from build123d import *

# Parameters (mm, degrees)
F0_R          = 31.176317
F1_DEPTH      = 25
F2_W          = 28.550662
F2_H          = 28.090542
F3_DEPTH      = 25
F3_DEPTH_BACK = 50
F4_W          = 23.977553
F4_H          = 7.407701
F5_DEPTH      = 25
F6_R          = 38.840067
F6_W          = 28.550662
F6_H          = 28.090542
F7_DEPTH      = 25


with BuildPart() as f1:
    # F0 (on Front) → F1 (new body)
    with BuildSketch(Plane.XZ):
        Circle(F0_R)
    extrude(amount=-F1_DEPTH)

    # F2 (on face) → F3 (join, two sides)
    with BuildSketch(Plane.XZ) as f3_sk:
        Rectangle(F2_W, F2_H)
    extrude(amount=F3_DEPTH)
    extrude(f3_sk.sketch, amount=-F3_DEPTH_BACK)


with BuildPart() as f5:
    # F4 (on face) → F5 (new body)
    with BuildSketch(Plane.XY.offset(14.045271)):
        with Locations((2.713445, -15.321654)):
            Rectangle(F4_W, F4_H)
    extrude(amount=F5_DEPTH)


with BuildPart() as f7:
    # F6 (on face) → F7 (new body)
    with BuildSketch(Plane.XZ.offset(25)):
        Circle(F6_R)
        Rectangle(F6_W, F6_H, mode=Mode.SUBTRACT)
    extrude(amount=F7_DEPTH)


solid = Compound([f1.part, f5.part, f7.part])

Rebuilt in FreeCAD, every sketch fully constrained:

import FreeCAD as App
import Part
import Sketcher
Q = App.Units.Quantity

doc = App.newDocument("Part")
body = doc.addObject("PartDesign::Body", "Body")

# Sketch on XZ plane
sketch1 = body.newObject("Sketcher::SketchObject", "Sketch")
sketch1.AttachmentSupport = (doc.getObject("XZ_Plane"), [""])
sketch1.MapMode = "FlatFace"
sketch1.addGeometry(Part.Circle(App.Vector(0, 0, 0), App.Vector(0, 0, 1), 31.176317), False)
sketch1.addConstraint([
    Sketcher.Constraint("Coincident", 0, 3, -1, 1),
    Sketcher.Constraint("Diameter", 0, Q("62.352634 mm")),
])
pad1 = body.newObject("PartDesign::Pad", "Pad")
pad1.Profile = sketch1
pad1.Length = 25
pad1.Reversed = True

# Sketch on XZ plane
sketch2 = body.newObject("Sketcher::SketchObject", "Sketch001")
sketch2.AttachmentSupport = (doc.getObject("XZ_Plane"), [""])
sketch2.MapMode = "FlatFace"
sketch2.addGeometry([
    Part.LineSegment(App.Vector(-14.275331, 14.045271, 0), App.Vector(-14.275331, -14.045271, 0)),
    Part.LineSegment(App.Vector(-14.275331, -14.045271, 0), App.Vector(14.275331, -14.045271, 0)),
    Part.LineSegment(App.Vector(14.275331, -14.045271, 0), App.Vector(14.275331, 14.045271, 0)),
    Part.LineSegment(App.Vector(14.275331, 14.045271, 0), App.Vector(-14.275331, 14.045271, 0)),
], False)
sketch2.addConstraint([
    Sketcher.Constraint("Coincident", 0, 2, 1, 1),
    Sketcher.Constraint("Coincident", 1, 2, 2, 1),
    Sketcher.Constraint("Coincident", 2, 2, 3, 1),
    Sketcher.Constraint("Coincident", 3, 2, 0, 1),
    Sketcher.Constraint("Vertical", 0),
    Sketcher.Constraint("Horizontal", 1),
    Sketcher.Constraint("Vertical", 2),
    Sketcher.Constraint("Horizontal", 3),
    Sketcher.Constraint("Symmetric", 0, 2, 2, 2, -1, 1),
    Sketcher.Constraint("DistanceX", 1, 1, 1, 2, Q("28.550662 mm")),
    Sketcher.Constraint("DistanceY", 0, 2, 0, 1, Q("28.090542 mm")),
])
pad2 = body.newObject("PartDesign::Pad", "Pad001")
pad2.Profile = sketch2
pad2.Type = "TwoLengths"
pad2.Length = 25
pad2.Length2 = 50
body2 = doc.addObject("PartDesign::Body", "Body001")

# Sketch on XY plane
sketch3 = body2.newObject("Sketcher::SketchObject", "Sketch002")
sketch3.AttachmentSupport = (doc.getObject("XY_Plane001"), [""])
sketch3.MapMode = "FlatFace"
sketch3.AttachmentOffset = App.Placement(App.Vector(0, 0, 14.045271), App.Rotation())
sketch3.addGeometry([
    Part.LineSegment(App.Vector(-9.275332, -11.617804, 0), App.Vector(-9.275332, -19.025505, 0)),
    Part.LineSegment(App.Vector(-9.275332, -19.025505, 0), App.Vector(14.702222, -19.025505, 0)),
    Part.LineSegment(App.Vector(14.702222, -19.025505, 0), App.Vector(14.702222, -11.617804, 0)),
    Part.LineSegment(App.Vector(14.702222, -11.617804, 0), App.Vector(-9.275332, -11.617804, 0)),
], False)
sketch3.addConstraint([
    Sketcher.Constraint("Coincident", 0, 2, 1, 1),
    Sketcher.Constraint("Coincident", 1, 2, 2, 1),
    Sketcher.Constraint("Coincident", 2, 2, 3, 1),
    Sketcher.Constraint("Coincident", 3, 2, 0, 1),
    Sketcher.Constraint("Vertical", 0),
    Sketcher.Constraint("Horizontal", 1),
    Sketcher.Constraint("Vertical", 2),
    Sketcher.Constraint("Horizontal", 3),
    Sketcher.Constraint("DistanceY", 0, 2, 0, 1, Q("7.407701 mm")),
    Sketcher.Constraint("DistanceX", 1, 1, 1, 2, Q("23.977553 mm")),
    Sketcher.Constraint("DistanceX", 0, 2, -1, 1, Q("9.275332 mm")),
    Sketcher.Constraint("DistanceY", 0, 2, -1, 1, Q("19.025505 mm")),
])
pad3 = body2.newObject("PartDesign::Pad", "Pad002")
pad3.Profile = sketch3
pad3.Length = 25
body3 = doc.addObject("PartDesign::Body", "Body002")

# Sketch on XZ plane
sketch4 = body3.newObject("Sketcher::SketchObject", "Sketch003")
sketch4.AttachmentSupport = (doc.getObject("XZ_Plane002"), [""])
sketch4.MapMode = "FlatFace"
sketch4.AttachmentOffset = App.Placement(App.Vector(0, 0, 25), App.Rotation())
sketch4.addGeometry([
    Part.Circle(App.Vector(0, 0, 0), App.Vector(0, 0, 1), 38.840067),  # 0
    Part.LineSegment(App.Vector(14.275331, -14.045271, 0), App.Vector(-14.275331, -14.045271, 0)),  # 1
    Part.LineSegment(App.Vector(-14.275331, -14.045271, 0), App.Vector(-14.275331, 14.045271, 0)),  # 2
    Part.LineSegment(App.Vector(-14.275331, 14.045271, 0), App.Vector(14.275331, 14.045271, 0)),  # 3
    Part.LineSegment(App.Vector(14.275331, 14.045271, 0), App.Vector(14.275331, -14.045271, 0)),  # 4
], False)
sketch4.addConstraint([
    Sketcher.Constraint("Coincident", 1, 2, 2, 1),
    Sketcher.Constraint("Coincident", 2, 2, 3, 1),
    Sketcher.Constraint("Coincident", 3, 2, 4, 1),
    Sketcher.Constraint("Coincident", 4, 2, 1, 1),
    Sketcher.Constraint("Horizontal", 1),
    Sketcher.Constraint("Vertical", 2),
    Sketcher.Constraint("Horizontal", 3),
    Sketcher.Constraint("Vertical", 4),
    Sketcher.Constraint("Coincident", 0, 3, -1, 1),
    Sketcher.Constraint("Symmetric", 1, 2, 3, 2, -1, 1),
    Sketcher.Constraint("Diameter", 0, Q("77.680134 mm")),
    Sketcher.Constraint("DistanceX", 1, 2, 1, 1, Q("28.550662 mm")),
    Sketcher.Constraint("DistanceY", 2, 1, 2, 2, Q("28.090542 mm")),
])
pad4 = body3.newObject("PartDesign::Pad", "Pad003")
pad4.Profile = sketch4
pad4.Length = 25

doc.recompute()
